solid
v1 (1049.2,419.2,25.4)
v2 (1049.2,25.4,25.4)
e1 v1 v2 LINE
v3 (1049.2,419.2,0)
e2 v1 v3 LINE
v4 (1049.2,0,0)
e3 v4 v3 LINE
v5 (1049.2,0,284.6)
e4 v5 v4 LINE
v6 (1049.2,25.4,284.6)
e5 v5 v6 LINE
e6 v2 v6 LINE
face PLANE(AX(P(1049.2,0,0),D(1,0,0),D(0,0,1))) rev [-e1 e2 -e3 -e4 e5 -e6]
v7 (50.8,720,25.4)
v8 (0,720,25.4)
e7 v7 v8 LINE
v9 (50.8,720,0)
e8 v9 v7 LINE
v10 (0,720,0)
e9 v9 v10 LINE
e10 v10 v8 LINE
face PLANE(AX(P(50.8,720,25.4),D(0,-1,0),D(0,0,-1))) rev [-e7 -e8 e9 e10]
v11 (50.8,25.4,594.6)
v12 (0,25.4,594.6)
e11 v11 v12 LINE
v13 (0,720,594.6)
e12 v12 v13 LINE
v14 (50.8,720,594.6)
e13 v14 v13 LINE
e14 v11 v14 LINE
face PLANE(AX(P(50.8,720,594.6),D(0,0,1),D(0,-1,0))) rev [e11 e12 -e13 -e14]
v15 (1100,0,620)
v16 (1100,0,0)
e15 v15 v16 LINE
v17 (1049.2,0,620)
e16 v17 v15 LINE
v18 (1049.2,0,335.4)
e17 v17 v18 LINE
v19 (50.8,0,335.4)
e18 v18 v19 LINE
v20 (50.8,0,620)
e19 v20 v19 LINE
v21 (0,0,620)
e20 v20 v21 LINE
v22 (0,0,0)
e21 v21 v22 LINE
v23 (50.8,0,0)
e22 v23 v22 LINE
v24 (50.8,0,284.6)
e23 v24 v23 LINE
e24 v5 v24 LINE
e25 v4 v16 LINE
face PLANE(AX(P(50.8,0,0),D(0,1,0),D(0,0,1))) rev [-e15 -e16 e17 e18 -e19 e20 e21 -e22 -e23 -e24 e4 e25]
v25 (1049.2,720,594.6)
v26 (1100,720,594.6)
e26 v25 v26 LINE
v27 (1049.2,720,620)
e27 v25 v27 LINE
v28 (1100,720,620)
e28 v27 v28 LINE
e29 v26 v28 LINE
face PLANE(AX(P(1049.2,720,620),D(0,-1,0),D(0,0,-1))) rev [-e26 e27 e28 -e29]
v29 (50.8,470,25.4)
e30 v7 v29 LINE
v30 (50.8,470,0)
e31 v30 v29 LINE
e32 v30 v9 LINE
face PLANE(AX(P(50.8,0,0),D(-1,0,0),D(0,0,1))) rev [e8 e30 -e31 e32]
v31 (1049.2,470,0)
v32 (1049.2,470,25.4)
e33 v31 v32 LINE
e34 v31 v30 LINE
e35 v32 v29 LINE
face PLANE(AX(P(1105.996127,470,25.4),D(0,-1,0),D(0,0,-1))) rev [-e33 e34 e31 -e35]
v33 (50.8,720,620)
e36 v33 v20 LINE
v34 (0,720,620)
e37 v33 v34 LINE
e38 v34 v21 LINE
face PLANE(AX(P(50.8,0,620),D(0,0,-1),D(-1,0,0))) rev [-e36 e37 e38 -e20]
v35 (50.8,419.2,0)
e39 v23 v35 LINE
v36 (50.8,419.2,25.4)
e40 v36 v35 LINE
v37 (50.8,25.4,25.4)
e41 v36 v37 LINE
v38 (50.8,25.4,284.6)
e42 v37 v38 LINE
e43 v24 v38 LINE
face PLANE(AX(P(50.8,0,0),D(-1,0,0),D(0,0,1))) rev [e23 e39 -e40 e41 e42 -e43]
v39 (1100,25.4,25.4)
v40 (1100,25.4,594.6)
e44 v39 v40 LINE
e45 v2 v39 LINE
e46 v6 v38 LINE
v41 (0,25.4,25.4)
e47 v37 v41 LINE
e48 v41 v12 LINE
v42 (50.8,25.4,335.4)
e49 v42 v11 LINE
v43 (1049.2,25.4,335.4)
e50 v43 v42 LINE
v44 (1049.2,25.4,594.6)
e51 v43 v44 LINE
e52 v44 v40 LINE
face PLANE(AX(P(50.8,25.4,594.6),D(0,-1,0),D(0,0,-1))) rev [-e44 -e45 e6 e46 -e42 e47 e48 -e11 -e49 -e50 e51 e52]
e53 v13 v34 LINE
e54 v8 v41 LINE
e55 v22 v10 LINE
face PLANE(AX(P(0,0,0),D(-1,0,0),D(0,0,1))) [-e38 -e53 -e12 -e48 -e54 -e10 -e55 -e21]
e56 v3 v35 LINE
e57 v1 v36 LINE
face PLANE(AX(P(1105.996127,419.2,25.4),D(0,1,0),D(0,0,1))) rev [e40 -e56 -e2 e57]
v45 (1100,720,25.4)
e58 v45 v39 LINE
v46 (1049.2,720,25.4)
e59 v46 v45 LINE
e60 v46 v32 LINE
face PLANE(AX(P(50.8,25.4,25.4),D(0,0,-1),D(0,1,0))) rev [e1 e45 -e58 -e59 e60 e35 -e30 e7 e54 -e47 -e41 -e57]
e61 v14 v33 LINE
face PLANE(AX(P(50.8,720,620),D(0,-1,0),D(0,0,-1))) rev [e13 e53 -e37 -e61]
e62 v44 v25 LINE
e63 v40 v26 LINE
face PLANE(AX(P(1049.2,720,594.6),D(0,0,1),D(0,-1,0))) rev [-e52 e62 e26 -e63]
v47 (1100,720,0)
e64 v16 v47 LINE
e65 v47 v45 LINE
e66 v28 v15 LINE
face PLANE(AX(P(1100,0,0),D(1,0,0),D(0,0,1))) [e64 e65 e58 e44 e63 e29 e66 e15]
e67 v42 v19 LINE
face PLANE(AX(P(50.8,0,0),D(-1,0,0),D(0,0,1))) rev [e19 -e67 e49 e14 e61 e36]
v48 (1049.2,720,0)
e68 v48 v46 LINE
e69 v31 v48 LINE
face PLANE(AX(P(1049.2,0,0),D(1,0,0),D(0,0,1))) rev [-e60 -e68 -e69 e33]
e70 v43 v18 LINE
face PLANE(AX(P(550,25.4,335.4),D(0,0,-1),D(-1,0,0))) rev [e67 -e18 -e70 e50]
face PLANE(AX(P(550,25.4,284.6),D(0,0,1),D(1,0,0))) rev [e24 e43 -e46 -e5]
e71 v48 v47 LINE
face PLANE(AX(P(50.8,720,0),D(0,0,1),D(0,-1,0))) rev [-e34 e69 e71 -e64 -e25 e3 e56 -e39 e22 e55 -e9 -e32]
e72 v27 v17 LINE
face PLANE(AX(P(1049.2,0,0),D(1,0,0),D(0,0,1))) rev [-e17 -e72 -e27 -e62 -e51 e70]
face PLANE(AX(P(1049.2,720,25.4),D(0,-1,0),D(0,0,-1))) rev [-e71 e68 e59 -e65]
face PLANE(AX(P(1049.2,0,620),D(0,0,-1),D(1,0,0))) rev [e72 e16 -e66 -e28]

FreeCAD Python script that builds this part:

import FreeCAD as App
import Part
import Sketcher
Q = App.Units.Quantity


def add_polygon(sketch, points):
    """Adds a closed chain of lines whose ends are joined by coincident constraints."""
    first, n = sketch.GeometryCount, len(points)
    for a, b in zip(points, points[1:] + points[:1]):
        sketch.addGeometry(Part.LineSegment(App.Vector(*a, 0), App.Vector(*b, 0)), False)
    for i in range(n):
        sketch.addConstraint(Sketcher.Constraint("Coincident", first + i, 2, first + (i + 1) % n, 1))

doc = App.newDocument("Part")
body = doc.addObject("PartDesign::Body", "Body")

# Sketch on YZ plane
sketch1 = doc.addObject("Sketcher::SketchObject", "Sketch")
body.addObject(sketch1)
sketch1.AttachmentSupport = (doc.YZ_Plane, [""])
sketch1.MapMode = "FlatFace"
add_polygon(sketch1, [(0, 0), (720, 0), (720, 25), (25, 25), (25, 595), (720, 595), (720, 620), (0, 620)])  # lines 0-7
sketch1.addConstraint([
    Sketcher.Constraint("Horizontal", 0),
    Sketcher.Constraint("Vertical", 1),
    Sketcher.Constraint("Horizontal", 2),
    Sketcher.Constraint("Vertical", 3),
    Sketcher.Constraint("Horizontal", 4),
    Sketcher.Constraint("Vertical", 5),
    Sketcher.Constraint("Horizontal", 6),
    Sketcher.Constraint("Vertical", 7),
    Sketcher.Constraint("Coincident", 7, 2, -1, 1),
    Sketcher.Constraint("Vertical", 1, 2, 4, 2),
    Sketcher.Constraint("Equal", 1, 5),
    Sketcher.Constraint("DistanceX", 0, 1, 0, 2, Q("720 mm")),
    Sketcher.Constraint("DistanceY", 7, 2, 7, 1, Q("620 mm")),
    Sketcher.Constraint("DistanceX", 2, 2, 2, 1, Q("694.6 mm")),
    Sketcher.Constraint("DistanceY", 1, 1, 1, 2, Q("25.4 mm")),
])
pad1 = doc.addObject("PartDesign::Pad", "Pad")
body.addObject(pad1)
pad1.Profile = sketch1
pad1.Length = 50.8

# Sketch on YZ plane
sketch2 = doc.addObject("Sketcher::SketchObject", "Sketch001")
body.addObject(sketch2)
sketch2.AttachmentSupport = (doc.YZ_Plane, [""])
sketch2.MapMode = "FlatFace"
sketch2.AttachmentOffset = App.Placement(App.Vector(0, 0, 50.8), App.Rotation())
add_polygon(sketch2, [(25, 335), (0, 335), (0, 285), (25, 285)])  # lines 0-3
sketch2.addConstraint([
    Sketcher.Constraint("Horizontal", 0),
    Sketcher.Constraint("Vertical", 1),
    Sketcher.Constraint("Horizontal", 2),
    Sketcher.Constraint("Vertical", 3),
    Sketcher.Constraint("PointOnObject", 0, 2, -2),
    Sketcher.Constraint("DistanceX", 0, 2, 0, 1, Q("25.4 mm")),
    Sketcher.Constraint("DistanceY", 1, 2, 1, 1, Q("50.8 mm")),
    Sketcher.Constraint("DistanceY", -1, 1, 0, 2, Q("335.4 mm")),
])
pad2 = doc.addObject("PartDesign::Pad", "Pad001")
body.addObject(pad2)
pad2.Profile = sketch2
pad2.Length = 499.2
doc.recompute()

datumplane = doc.addObject("PartDesign::Plane", "DatumPlane")
body.addObject(datumplane)
datumplane.AttachmentSupport = (doc.YZ_Plane, [""])
datumplane.MapMode = "FlatFace"
datumplane.AttachmentOffset = App.Placement(App.Vector(0, 0, 550), App.Rotation())
mirrored = doc.addObject("PartDesign::Mirrored", "Mirrored")
body.addObject(mirrored)
mirrored.Originals = [pad1, pad2]
mirrored.MirrorPlane = (datumplane, [""])
body.Tip = mirrored

# Sketch on YZ plane
sketch3 = doc.addObject("Sketcher::SketchObject", "Sketch002")
body.addObject(sketch3)
sketch3.AttachmentSupport = (doc.YZ_Plane, [""])
sketch3.MapMode = "FlatFace"
sketch3.AttachmentOffset = App.Placement(App.Vector(0, 0, 50.8), App.Rotation())
add_polygon(sketch3, [(470, 25), (419, 25), (419, 0), (470, 0)])  # lines 0-3
sketch3.addConstraint([
    Sketcher.Constraint("Horizontal", 0),
    Sketcher.Constraint("Vertical", 1),
    Sketcher.Constraint("Horizontal", 2),
    Sketcher.Constraint("Vertical", 3),
    Sketcher.Constraint("PointOnObject", 1, 2, -1),
    Sketcher.Constraint("DistanceX", 0, 2, 0, 1, Q("50.8 mm")),
    Sketcher.Constraint("DistanceY", 1, 2, 1, 1, Q("25.4 mm")),
    Sketcher.Constraint("DistanceX", -1, 1, 2, 2, Q("470 mm")),
])
pad3 = doc.addObject("PartDesign::Pad", "Pad002")
body.addObject(pad3)
pad3.Profile = sketch3
pad3.Length = 998.4

doc.recompute()
